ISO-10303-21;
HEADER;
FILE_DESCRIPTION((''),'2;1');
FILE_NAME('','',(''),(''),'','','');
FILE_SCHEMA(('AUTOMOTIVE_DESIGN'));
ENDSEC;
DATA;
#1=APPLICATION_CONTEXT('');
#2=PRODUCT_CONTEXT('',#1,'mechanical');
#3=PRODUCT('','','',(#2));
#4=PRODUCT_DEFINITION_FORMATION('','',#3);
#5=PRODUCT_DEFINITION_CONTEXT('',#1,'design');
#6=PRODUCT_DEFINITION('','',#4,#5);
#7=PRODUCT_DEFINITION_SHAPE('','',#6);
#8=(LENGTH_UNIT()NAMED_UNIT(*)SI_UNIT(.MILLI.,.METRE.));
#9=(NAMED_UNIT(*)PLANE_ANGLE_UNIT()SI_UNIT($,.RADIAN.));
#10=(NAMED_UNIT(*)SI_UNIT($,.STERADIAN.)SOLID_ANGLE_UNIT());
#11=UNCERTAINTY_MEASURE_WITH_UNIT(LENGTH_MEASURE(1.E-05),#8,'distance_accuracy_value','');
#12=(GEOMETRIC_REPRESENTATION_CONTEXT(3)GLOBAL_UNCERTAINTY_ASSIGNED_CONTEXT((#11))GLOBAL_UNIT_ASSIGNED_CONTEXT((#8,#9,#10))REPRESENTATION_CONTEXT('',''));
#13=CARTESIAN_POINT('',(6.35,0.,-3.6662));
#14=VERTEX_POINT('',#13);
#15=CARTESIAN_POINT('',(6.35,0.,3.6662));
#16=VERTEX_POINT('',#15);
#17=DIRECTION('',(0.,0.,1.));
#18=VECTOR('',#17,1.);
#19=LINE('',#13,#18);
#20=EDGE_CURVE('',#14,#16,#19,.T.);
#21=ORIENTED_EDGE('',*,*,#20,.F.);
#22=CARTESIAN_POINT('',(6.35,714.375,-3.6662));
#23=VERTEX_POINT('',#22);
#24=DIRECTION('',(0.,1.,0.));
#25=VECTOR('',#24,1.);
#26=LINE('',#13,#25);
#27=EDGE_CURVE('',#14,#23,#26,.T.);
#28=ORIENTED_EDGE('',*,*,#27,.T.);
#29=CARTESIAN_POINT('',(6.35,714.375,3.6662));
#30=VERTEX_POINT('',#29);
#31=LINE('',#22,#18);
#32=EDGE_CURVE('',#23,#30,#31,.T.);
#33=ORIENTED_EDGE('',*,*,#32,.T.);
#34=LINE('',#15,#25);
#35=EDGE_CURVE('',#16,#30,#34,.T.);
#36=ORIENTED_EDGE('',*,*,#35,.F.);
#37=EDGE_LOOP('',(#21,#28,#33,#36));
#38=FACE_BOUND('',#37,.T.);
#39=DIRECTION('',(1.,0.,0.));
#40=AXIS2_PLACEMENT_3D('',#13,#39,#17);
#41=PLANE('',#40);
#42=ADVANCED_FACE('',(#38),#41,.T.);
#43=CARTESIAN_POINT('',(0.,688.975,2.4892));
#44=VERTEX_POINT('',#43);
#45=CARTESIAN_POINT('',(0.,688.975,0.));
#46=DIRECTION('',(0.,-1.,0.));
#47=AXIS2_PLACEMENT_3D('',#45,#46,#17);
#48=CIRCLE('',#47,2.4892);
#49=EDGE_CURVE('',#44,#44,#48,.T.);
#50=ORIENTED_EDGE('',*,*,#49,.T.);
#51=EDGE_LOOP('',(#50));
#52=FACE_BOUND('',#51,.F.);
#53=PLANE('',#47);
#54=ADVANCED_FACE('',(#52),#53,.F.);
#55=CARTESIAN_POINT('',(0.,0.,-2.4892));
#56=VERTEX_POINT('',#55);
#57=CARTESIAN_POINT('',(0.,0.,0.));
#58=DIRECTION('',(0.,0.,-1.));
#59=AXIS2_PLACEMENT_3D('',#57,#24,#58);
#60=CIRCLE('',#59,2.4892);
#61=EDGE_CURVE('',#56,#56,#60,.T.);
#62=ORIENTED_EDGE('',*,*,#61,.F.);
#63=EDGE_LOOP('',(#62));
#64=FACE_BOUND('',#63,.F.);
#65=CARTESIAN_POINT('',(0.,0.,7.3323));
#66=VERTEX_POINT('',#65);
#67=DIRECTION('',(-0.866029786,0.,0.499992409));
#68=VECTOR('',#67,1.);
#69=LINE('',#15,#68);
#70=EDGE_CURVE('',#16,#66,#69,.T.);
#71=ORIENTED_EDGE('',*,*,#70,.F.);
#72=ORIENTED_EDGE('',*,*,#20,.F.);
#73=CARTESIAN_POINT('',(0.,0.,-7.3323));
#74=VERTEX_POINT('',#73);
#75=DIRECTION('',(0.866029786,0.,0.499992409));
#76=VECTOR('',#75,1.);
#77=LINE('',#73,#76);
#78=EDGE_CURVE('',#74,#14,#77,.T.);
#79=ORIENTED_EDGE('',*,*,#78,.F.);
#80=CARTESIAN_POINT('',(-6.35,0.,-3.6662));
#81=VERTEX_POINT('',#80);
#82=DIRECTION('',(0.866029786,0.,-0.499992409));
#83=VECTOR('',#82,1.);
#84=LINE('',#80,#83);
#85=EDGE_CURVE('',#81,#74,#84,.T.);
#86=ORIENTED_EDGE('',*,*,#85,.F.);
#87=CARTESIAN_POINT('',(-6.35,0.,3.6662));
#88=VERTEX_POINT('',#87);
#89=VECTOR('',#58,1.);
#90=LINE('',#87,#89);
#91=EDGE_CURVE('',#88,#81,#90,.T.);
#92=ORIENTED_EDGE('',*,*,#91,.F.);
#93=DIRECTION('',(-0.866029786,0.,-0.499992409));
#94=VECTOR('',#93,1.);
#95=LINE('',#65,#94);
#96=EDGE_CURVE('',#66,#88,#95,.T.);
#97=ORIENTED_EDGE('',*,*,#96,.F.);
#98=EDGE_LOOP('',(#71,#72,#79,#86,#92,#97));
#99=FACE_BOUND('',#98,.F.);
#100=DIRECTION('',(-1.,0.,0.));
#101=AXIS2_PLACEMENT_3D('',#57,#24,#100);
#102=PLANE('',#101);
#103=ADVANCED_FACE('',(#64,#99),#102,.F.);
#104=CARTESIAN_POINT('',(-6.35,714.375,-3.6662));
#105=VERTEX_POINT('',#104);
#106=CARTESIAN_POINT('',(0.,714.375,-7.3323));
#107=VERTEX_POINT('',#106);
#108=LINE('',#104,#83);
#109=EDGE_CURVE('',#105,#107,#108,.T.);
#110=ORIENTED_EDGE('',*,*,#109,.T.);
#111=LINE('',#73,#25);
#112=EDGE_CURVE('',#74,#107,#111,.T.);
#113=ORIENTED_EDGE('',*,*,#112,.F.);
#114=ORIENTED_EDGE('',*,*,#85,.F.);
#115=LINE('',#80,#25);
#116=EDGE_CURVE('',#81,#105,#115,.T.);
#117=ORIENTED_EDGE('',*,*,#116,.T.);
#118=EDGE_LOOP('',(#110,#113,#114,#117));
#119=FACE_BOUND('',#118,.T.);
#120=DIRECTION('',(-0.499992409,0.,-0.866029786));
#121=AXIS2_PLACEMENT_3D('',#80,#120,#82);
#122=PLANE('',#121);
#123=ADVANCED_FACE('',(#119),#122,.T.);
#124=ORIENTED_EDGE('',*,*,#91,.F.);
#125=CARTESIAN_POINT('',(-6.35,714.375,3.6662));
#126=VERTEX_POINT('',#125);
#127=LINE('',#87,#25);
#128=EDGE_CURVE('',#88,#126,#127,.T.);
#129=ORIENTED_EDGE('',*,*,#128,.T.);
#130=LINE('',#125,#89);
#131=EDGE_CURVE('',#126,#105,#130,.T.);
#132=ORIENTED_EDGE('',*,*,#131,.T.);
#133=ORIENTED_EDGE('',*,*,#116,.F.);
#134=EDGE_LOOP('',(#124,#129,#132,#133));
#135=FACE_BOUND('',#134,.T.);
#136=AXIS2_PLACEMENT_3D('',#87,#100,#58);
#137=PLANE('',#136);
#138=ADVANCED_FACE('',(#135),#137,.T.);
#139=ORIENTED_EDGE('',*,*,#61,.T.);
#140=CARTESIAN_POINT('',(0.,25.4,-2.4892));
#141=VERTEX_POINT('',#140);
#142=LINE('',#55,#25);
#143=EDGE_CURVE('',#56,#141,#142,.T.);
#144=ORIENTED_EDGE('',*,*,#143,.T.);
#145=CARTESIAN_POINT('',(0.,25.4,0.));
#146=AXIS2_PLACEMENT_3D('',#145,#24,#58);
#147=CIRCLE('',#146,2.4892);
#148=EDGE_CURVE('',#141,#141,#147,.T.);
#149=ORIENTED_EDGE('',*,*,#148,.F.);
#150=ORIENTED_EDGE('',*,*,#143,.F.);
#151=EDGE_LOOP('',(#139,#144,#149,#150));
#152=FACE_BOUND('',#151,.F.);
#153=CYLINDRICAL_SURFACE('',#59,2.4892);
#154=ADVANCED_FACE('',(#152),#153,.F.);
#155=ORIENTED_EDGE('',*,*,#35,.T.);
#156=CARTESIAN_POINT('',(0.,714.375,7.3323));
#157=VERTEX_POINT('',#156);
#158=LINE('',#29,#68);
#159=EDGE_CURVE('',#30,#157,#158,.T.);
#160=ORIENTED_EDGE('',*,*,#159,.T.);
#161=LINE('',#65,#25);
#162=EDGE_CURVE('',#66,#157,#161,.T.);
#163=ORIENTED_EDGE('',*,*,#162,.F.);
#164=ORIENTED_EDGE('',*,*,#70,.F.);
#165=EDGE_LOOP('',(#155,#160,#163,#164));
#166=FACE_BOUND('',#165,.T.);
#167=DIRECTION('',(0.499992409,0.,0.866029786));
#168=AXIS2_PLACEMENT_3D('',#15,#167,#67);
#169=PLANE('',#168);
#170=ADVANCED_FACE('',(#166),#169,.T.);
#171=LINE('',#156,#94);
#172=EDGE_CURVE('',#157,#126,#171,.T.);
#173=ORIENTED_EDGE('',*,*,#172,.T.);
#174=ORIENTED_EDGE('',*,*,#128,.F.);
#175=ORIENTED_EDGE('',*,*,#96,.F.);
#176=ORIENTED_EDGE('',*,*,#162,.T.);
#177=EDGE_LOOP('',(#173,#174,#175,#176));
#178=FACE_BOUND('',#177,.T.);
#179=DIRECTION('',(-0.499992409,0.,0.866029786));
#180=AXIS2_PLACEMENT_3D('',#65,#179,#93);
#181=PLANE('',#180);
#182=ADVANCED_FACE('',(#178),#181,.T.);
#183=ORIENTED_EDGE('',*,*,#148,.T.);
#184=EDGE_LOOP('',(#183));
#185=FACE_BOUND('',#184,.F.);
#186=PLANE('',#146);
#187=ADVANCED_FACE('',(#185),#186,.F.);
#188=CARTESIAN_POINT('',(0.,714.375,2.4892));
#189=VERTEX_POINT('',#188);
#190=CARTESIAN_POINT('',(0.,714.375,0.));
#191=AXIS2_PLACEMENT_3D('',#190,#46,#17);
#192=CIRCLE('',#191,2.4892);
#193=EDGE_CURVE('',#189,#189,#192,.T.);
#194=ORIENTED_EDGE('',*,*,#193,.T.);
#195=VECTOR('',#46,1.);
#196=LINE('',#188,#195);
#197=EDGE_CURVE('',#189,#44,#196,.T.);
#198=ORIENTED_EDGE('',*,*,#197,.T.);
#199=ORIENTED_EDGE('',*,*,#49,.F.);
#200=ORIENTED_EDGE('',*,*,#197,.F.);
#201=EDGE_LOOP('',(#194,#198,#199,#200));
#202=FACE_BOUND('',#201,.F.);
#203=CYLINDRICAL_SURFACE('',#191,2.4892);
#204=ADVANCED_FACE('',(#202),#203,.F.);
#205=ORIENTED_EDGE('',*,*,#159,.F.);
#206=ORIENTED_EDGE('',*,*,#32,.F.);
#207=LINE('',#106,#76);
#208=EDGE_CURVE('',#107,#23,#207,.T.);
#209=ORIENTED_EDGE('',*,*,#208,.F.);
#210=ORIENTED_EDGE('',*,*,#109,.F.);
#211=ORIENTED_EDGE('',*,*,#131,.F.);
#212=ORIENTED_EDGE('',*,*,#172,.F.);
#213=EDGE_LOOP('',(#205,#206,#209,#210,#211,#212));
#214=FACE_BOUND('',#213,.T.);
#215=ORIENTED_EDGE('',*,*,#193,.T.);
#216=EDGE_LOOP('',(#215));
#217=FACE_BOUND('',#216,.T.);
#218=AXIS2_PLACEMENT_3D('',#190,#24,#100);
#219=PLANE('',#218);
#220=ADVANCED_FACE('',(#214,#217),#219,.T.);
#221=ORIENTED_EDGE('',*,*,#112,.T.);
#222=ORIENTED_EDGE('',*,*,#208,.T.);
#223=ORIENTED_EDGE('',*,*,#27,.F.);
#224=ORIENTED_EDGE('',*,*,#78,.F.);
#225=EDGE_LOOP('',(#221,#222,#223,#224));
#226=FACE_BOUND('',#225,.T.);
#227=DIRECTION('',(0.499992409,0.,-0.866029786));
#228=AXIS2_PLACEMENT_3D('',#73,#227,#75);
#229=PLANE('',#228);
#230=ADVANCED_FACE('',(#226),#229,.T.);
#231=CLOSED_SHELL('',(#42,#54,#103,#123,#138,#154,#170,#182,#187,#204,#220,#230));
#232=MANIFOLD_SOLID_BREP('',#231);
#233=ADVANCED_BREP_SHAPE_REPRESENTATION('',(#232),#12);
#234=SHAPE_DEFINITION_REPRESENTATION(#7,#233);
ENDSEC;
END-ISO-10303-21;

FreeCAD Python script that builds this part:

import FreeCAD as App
import Part
import Sketcher
from FreeCAD import Vector
Q = App.Units.Quantity

doc = App.newDocument("Part")
params = doc.addObject("Spreadsheet::Sheet", "Params")
for row, (alias, value) in enumerate([
    ("pad1_length", "28.125 in"),
    ("sketch2_diameter", "0.196 in"),
    ("hole_diameter", "0.196 in"),
    ("hole_depth", "1 in"),
    ("sketch3_diameter", "0.196 in"),
    ("hole2_diameter", "0.196 in"),
    ("hole2_depth", "1 in"),
], start=1):
    params.set(f"A{row}", alias)
    params.set(f"B{row}", "=" + value)
    params.setAlias(f"B{row}", alias)

body = doc.addObject("PartDesign::Body", "Body")

sketch1 = body.newObject("Sketcher::SketchObject", "Sketch")
sketch1.AttachmentSupport = (doc.getObject("XZ_Plane"), [""])
sketch1.MapMode = "FlatFace"
sketch1.addGeometry([
    Part.LineSegment(Vector(0, -7.3323, 0), Vector(-6.35, -3.6662, 0)),
    Part.LineSegment(Vector(-6.35, -3.6662, 0), Vector(-6.35, 3.6662, 0)),
    Part.LineSegment(Vector(-6.35, 3.6662, 0), Vector(0, 7.3323, 0)),
    Part.LineSegment(Vector(0, 7.3323, 0), Vector(6.35, 3.6662, 0)),
    Part.LineSegment(Vector(6.35, 3.6662, 0), Vector(6.35, -3.6662, 0)),
    Part.LineSegment(Vector(6.35, -3.6662, 0), Vector(0, -7.3323, 0)),
], False)
sketch1.addConstraint([
    Sketcher.Constraint("Coincident", 0, 2, 1, 1),
    Sketcher.Constraint("Coincident", 1, 2, 2, 1),
    Sketcher.Constraint("Coincident", 2, 2, 3, 1),
    Sketcher.Constraint("Coincident", 3, 2, 4, 1),
    Sketcher.Constraint("Coincident", 4, 2, 5, 1),
    Sketcher.Constraint("Coincident", 5, 2, 0, 1),
    Sketcher.Constraint("Vertical", 1),
    Sketcher.Constraint("Vertical", 4),
    Sketcher.Constraint("Symmetric", 0, 2, 3, 2, -1, 1),
    Sketcher.Constraint("Symmetric", 2, 2, 5, 2, -1, 1),
    Sketcher.Constraint("PointOnObject", 2, 2, -2),
    Sketcher.Constraint("Parallel", 2, 5),
    Sketcher.Constraint("Horizontal", 1, 2, 3, 2),
    Sketcher.Constraint("DistanceX", 1, 2, 3, 2, Q("0.5 in")),
    Sketcher.Constraint("Angle", 0, Q("150.0005 deg")),
    Sketcher.Constraint("DistanceY", 0, 2, 2, 2, Q("0.433 in")),
])
pad1 = body.newObject("PartDesign::Pad", "Pad")
pad1.Profile = sketch1
pad1.setExpression("Length", "Params.pad1_length")
pad1.Reversed = True

sketch2 = body.newObject("Sketcher::SketchObject", "Sketch001")
sketch2.AttachmentSupport = (doc.getObject("XZ_Plane"), [""])
sketch2.MapMode = "FlatFace"
sketch2.addGeometry(Part.Circle(Vector(0, 0, 0), Vector(0, 0, 1), 2.4892), False)
sketch2.addConstraint([
    Sketcher.Constraint("Coincident", 0, 3, -1, 1),
    Sketcher.Constraint("Diameter", 0, Q("0.196 in")),
])
sketch2.setExpression("Constraints[1]", "Params.sketch2_diameter")
doc.recompute()
hole = body.newObject("PartDesign::Hole", "Hole")
hole.Profile = sketch2
hole.ThreadType = "None"
hole.setExpression("Diameter", "Params.hole_diameter")
hole.DepthType = "Dimension"
hole.setExpression("Depth", "Params.hole_depth")
hole.DrillPoint = "Flat"

sketch3 = body.newObject("Sketcher::SketchObject", "Sketch002")
sketch3.AttachmentSupport = (doc.getObject("XZ_Plane"), [""])
sketch3.MapMode = "FlatFace"
sketch3.AttachmentOffset = App.Placement(Vector(0, 0, -28.125 * 25.4), App.Rotation())
sketch3.addGeometry(Part.Circle(Vector(0, 0, 0), Vector(0, 0, 1), 2.4892), False)
sketch3.addConstraint([
    Sketcher.Constraint("Coincident", 0, 3, -1, 1),
    Sketcher.Constraint("Diameter", 0, Q("0.196 in")),
])
sketch3.setExpression("Constraints[1]", "Params.sketch3_diameter")
doc.recompute()
hole2 = body.newObject("PartDesign::Hole", "Hole001")
hole2.Profile = sketch3
hole2.ThreadType = "None"
hole2.setExpression("Diameter", "Params.hole2_diameter")
hole2.DepthType = "Dimension"
hole2.setExpression("Depth", "Params.hole2_depth")
hole2.DrillPoint = "Flat"
hole2.Reversed = True

doc.recompute()
